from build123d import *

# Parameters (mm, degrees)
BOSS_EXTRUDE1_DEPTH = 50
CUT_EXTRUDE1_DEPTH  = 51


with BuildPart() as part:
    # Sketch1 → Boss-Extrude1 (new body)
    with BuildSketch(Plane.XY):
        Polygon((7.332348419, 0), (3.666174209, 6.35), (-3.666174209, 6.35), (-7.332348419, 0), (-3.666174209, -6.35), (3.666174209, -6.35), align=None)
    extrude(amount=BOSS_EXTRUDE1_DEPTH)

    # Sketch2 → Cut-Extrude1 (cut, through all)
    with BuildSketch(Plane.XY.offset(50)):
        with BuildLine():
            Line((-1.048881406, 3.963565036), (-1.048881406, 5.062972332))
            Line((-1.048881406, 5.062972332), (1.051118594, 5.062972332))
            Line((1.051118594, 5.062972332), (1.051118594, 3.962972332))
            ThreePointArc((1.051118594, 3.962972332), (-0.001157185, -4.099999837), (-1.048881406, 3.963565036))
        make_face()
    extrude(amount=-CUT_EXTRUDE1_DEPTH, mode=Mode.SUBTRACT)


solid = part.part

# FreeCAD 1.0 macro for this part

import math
import FreeCAD as App
import Part
import Sketcher
Q = App.Units.Quantity


def add_polygon(sketch, points):
    """Adds a closed chain of lines whose ends are joined by coincident constraints."""
    first, n = sketch.GeometryCount, len(points)
    for a, b in zip(points, points[1:] + points[:1]):
        sketch.addGeometry(Part.LineSegment(App.Vector(*a, 0), App.Vector(*b, 0)), False)
    for i in range(n):
        sketch.addConstraint(Sketcher.Constraint("Coincident", first + i, 2, first + (i + 1) % n, 1))

doc = App.newDocument("Part")
body = doc.addObject("PartDesign::Body", "Body")

sketch1 = body.newObject("Sketcher::SketchObject", "Sketch")
sketch1.AttachmentSupport = (doc.getObject("XY_Plane"), [""])
sketch1.MapMode = "FlatFace"
add_polygon(sketch1, [(7, 0), (4, 6), (-4, 6), (-7, 0), (-4, -6), (4, -6)])
sketch1.addConstraint([
    Sketcher.Constraint("Horizontal", 1),
    Sketcher.Constraint("Horizontal", 4),
    Sketcher.Constraint("Symmetric", 0, 2, 3, 2, -1, 1),
    Sketcher.Constraint("Symmetric", 2, 2, 5, 2, -1, 1),
    Sketcher.Constraint("PointOnObject", 2, 2, -1),
    Sketcher.Constraint("Parallel", 2, 5),
    Sketcher.Constraint("Vertical", 1, 2, 3, 2),
    Sketcher.Constraint("Angle", 0, Q("120 deg")),
    Sketcher.Constraint("DistanceY", 3, 2, 1, 2, Q("12.7 mm")),
    Sketcher.Constraint("DistanceX", 1, 2, 1, 1, Q("7.332348 mm")),
])
pad1 = body.newObject("PartDesign::Pad", "Pad")
pad1.Profile = sketch1
pad1.Length = 50

sketch2 = body.newObject("Sketcher::SketchObject", "Sketch001")
sketch2.AttachmentSupport = (doc.getObject("XY_Plane"), [""])
sketch2.MapMode = "FlatFace"
sketch2.AttachmentOffset = App.Placement(App.Vector(0, 0, 50), App.Rotation())
sketch2.addGeometry([
    Part.LineSegment(App.Vector(-1, 5.1, 0), App.Vector(-1, 4, 0)),
    Part.ArcOfCircle(Part.Circle(App.Vector(0, 0, 0), App.Vector(0, 0, 1), 4.1), math.radians(105), math.radians(435)),
    Part.LineSegment(App.Vector(1.1, 4, 0), App.Vector(1.1, 5.1, 0)),
    Part.LineSegment(App.Vector(1.1, 5.1, 0), App.Vector(-1, 5.1, 0)),
], False)
sketch2.addConstraint([
    Sketcher.Constraint("Coincident", 0, 2, 1, 1),
    Sketcher.Constraint("Coincident", 1, 2, 2, 1),
    Sketcher.Constraint("Coincident", 2, 2, 3, 1),
    Sketcher.Constraint("Coincident", 3, 2, 0, 1),
    Sketcher.Constraint("Vertical", 0),
    Sketcher.Constraint("Vertical", 2),
    Sketcher.Constraint("Horizontal", 3),
    Sketcher.Constraint("Coincident", 1, 3, -1, 1),
    Sketcher.Constraint("Radius", 1, Q("4.1 mm")),
    Sketcher.Constraint("DistanceX", 3, 2, 3, 1, Q("2.1 mm")),
    Sketcher.Constraint("DistanceY", 2, 1, 2, 2, Q("1.1 mm")),
    Sketcher.Constraint("DistanceY", 0, 2, 0, 1, Q("1.099407 mm")),
])
pocket1 = body.newObject("PartDesign::Pocket", "Pocket")
pocket1.Profile = sketch2
pocket1.Type = "ThroughAll"

doc.recompute()
